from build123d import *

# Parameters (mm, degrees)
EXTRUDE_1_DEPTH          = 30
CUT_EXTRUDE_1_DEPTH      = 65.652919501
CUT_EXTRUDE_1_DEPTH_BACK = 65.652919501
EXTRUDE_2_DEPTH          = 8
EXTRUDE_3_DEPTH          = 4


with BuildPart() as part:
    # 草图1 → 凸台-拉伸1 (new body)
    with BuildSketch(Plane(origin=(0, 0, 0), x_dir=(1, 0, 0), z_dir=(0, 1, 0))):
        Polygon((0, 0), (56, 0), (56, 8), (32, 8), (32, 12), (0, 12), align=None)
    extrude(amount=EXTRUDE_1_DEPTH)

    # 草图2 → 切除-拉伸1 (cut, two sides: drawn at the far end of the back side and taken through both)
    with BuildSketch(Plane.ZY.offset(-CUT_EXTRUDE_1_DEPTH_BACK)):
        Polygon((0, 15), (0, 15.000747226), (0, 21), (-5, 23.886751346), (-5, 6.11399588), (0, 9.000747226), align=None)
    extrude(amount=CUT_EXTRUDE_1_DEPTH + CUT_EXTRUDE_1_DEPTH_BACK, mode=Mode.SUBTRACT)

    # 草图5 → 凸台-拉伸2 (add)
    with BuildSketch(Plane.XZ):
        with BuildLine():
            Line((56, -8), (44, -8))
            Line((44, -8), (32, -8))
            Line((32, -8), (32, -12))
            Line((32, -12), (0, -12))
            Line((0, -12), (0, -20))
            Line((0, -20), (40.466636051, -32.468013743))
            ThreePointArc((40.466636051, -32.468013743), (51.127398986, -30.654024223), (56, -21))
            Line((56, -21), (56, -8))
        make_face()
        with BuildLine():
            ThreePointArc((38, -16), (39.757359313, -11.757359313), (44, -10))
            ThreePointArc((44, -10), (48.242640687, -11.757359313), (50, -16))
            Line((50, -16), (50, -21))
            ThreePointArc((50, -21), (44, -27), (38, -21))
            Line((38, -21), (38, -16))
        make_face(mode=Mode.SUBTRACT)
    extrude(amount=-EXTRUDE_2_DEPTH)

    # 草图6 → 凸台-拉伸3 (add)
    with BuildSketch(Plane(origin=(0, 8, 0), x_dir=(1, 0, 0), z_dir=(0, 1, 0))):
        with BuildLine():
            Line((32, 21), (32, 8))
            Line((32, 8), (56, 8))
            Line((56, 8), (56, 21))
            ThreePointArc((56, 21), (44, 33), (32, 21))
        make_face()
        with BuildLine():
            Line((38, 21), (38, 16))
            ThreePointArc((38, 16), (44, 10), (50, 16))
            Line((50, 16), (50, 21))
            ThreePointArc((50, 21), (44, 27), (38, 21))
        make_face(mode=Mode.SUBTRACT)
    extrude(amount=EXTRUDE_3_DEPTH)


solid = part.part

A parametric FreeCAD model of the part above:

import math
import FreeCAD as App
import Part
import Sketcher
from FreeCAD import Vector
Q = App.Units.Quantity

doc = App.newDocument("Part")
body = doc.addObject("PartDesign::Body", "Body")

# Sketch on XZ plane
sketch1 = body.newObject("Sketcher::SketchObject", "Sketch")
sketch1.AttachmentSupport = (doc.getObject("XZ_Plane"), [""])
sketch1.MapMode = "FlatFace"
sketch1.addGeometry(Part.LineSegment(Vector(0, 0, 0), Vector(56, 0, 0)), False)
sketch1.addGeometry(Part.LineSegment(Vector(56, 0, 0), Vector(56, -8, 0)), False)
sketch1.addGeometry(Part.LineSegment(Vector(56, -8, 0), Vector(32, -8, 0)), False)
sketch1.addGeometry(Part.LineSegment(Vector(32, -8, 0), Vector(32, -12, 0)), False)
sketch1.addGeometry(Part.LineSegment(Vector(32, -12, 0), Vector(0, -12, 0)), False)
sketch1.addGeometry(Part.LineSegment(Vector(0, -12, 0), Vector(0, 0, 0)), False)
sketch1.addConstraint(Sketcher.Constraint("Coincident", 0, 2, 1, 1))
sketch1.addConstraint(Sketcher.Constraint("Coincident", 1, 2, 2, 1))
sketch1.addConstraint(Sketcher.Constraint("Coincident", 2, 2, 3, 1))
sketch1.addConstraint(Sketcher.Constraint("Coincident", 3, 2, 4, 1))
sketch1.addConstraint(Sketcher.Constraint("Coincident", 4, 2, 5, 1))
sketch1.addConstraint(Sketcher.Constraint("Coincident", 5, 2, 0, 1))
sketch1.addConstraint(Sketcher.Constraint("Horizontal", 0))
sketch1.addConstraint(Sketcher.Constraint("Vertical", 1))
sketch1.addConstraint(Sketcher.Constraint("Horizontal", 2))
sketch1.addConstraint(Sketcher.Constraint("Vertical", 3))
sketch1.addConstraint(Sketcher.Constraint("Horizontal", 4))
sketch1.addConstraint(Sketcher.Constraint("Vertical", 5))
sketch1.addConstraint(Sketcher.Constraint("Coincident", 5, 2, -1, 1))
sketch1.addConstraint(Sketcher.Constraint("DistanceX", 0, 1, 0, 2, Q("56 mm")))
sketch1.addConstraint(Sketcher.Constraint("DistanceX", 2, 2, 2, 1, Q("24 mm")))
sketch1.addConstraint(Sketcher.Constraint("DistanceY", 1, 2, 1, 1, Q("8 mm")))
sketch1.addConstraint(Sketcher.Constraint("DistanceY", 3, 2, 3, 1, Q("4 mm")))
pad1 = body.newObject("PartDesign::Pad", "Pad")
pad1.Profile = sketch1
pad1.Length = 30
pad1.Reversed = True

# Sketch on YZ plane
sketch2 = body.newObject("Sketcher::SketchObject", "Sketch001")
sketch2.AttachmentSupport = (doc.getObject("YZ_Plane"), [""])
sketch2.MapMode = "FlatFace"
sketch2.addGeometry(Part.LineSegment(Vector(21, 0, 0), Vector(24, -5, 0)), False)
sketch2.addGeometry(Part.LineSegment(Vector(24, -5, 0), Vector(6, -5, 0)), False)
sketch2.addGeometry(Part.LineSegment(Vector(6, -5, 0), Vector(9, 0, 0)), False)
sketch2.addGeometry(Part.LineSegment(Vector(9, 0, 0), Vector(21, 0, 0)), False)
sketch2.addConstraint(Sketcher.Constraint("Coincident", 0, 2, 1, 1))
sketch2.addConstraint(Sketcher.Constraint("Coincident", 1, 2, 2, 1))
sketch2.addConstraint(Sketcher.Constraint("Coincident", 2, 2, 3, 1))
sketch2.addConstraint(Sketcher.Constraint("Coincident", 3, 2, 0, 1))
sketch2.addConstraint(Sketcher.Constraint("Horizontal", 1))
sketch2.addConstraint(Sketcher.Constraint("Horizontal", 3))
sketch2.addConstraint(Sketcher.Constraint("PointOnObject", 2, 2, -1))
sketch2.addConstraint(Sketcher.Constraint("Equal", 0, 2))
sketch2.addConstraint(Sketcher.Constraint("Angle", 0, Q("-60 deg")))
sketch2.addConstraint(Sketcher.Constraint("DistanceY", 0, 2, -1, 1, Q("5 mm")))
sketch2.addConstraint(Sketcher.Constraint("DistanceX", -1, 1, 3, 2, Q("21 mm")))
sketch2.addConstraint(Sketcher.Constraint("DistanceX", 1, 2, 1, 1, Q("17.772755 mm")))
pocket1 = body.newObject("PartDesign::Pocket", "Pocket")
pocket1.Profile = sketch2
pocket1.Type = "ThroughAll"
pocket1.Midplane = True

# Sketch on XZ plane
sketch3 = body.newObject("Sketcher::SketchObject", "Sketch002")
sketch3.AttachmentSupport = (doc.getObject("XZ_Plane"), [""])
sketch3.MapMode = "FlatFace"
sketch3.addGeometry(Part.LineSegment(Vector(56, -8, 0), Vector(32, -8, 0)), False)
sketch3.addGeometry(Part.LineSegment(Vector(32, -8, 0), Vector(32, -12, 0)), False)
sketch3.addGeometry(Part.LineSegment(Vector(32, -12, 0), Vector(0, -12, 0)), False)
sketch3.addGeometry(Part.LineSegment(Vector(0, -12, 0), Vector(0, -20, 0)), False)
sketch3.addGeometry(Part.LineSegment(Vector(0, -20, 0), Vector(40.5, -32.5, 0)), False)
sketch3.addGeometry(Part.ArcOfCircle(Part.Circle(Vector(44, -21, 0), Vector(0, 0, 1), 12), math.radians(-107), math.radians(0)), False)
sketch3.addGeometry(Part.LineSegment(Vector(56, -21, 0), Vector(56, -8, 0)), False)
sketch3.addGeometry(Part.LineSegment(Vector(38, -21, 0), Vector(38, -16, 0)), False)
sketch3.addGeometry(Part.ArcOfCircle(Part.Circle(Vector(44, -16, 0), Vector(0, 0, 1), 6), math.radians(90), math.radians(180)), False)
sketch3.addGeometry(Part.ArcOfCircle(Part.Circle(Vector(44, -16, 0), Vector(0, 0, 1), 6), math.radians(0), math.radians(90)), False)
sketch3.addGeometry(Part.LineSegment(Vector(50, -16, 0), Vector(50, -21, 0)), False)
sketch3.addGeometry(Part.ArcOfCircle(Part.Circle(Vector(44, -21, 0), Vector(0, 0, 1), 6), math.radians(180), math.radians(360)), False)
sketch3.addConstraint(Sketcher.Constraint("Coincident", 0, 2, 1, 1))
sketch3.addConstraint(Sketcher.Constraint("Coincident", 1, 2, 2, 1))
sketch3.addConstraint(Sketcher.Constraint("Coincident", 2, 2, 3, 1))
sketch3.addConstraint(Sketcher.Constraint("Coincident", 3, 2, 4, 1))
sketch3.addConstraint(Sketcher.Constraint("Tangent", 4, 2, 5, 1))
sketch3.addConstraint(Sketcher.Constraint("Tangent", 5, 2, 6, 1))
sketch3.addConstraint(Sketcher.Constraint("Coincident", 6, 2, 0, 1))
sketch3.addConstraint(Sketcher.Constraint("Tangent", 7, 2, 8, 2))
sketch3.addConstraint(Sketcher.Constraint("Tangent", 8, 1, 9, 2))
sketch3.addConstraint(Sketcher.Constraint("Tangent", 9, 1, 10, 1))
sketch3.addConstraint(Sketcher.Constraint("Tangent", 10, 2, 11, 2))
sketch3.addConstraint(Sketcher.Constraint("Tangent", 11, 1, 7, 1))
sketch3.addConstraint(Sketcher.Constraint("Horizontal", 0))
sketch3.addConstraint(Sketcher.Constraint("Vertical", 1))
sketch3.addConstraint(Sketcher.Constraint("Horizontal", 2))
sketch3.addConstraint(Sketcher.Constraint("Vertical", 3))
sketch3.addConstraint(Sketcher.Constraint("Vertical", 6))
sketch3.addConstraint(Sketcher.Constraint("Vertical", 7))
sketch3.addConstraint(Sketcher.Constraint("Vertical", 10))
sketch3.addConstraint(Sketcher.Constraint("Coincident", 11, 3, 5, 3))
sketch3.addConstraint(Sketcher.Constraint("Equal", 8, 9))
sketch3.addConstraint(Sketcher.Constraint("PointOnObject", 2, 2, -2))
sketch3.addConstraint(Sketcher.Constraint("Vertical", 11, 3, 8, 1))
sketch3.addConstraint(Sketcher.Constraint("Radius", 5, Q("12 mm")))
sketch3.addConstraint(Sketcher.Constraint("Radius", 8, Q("6 mm")))
sketch3.addConstraint(Sketcher.Constraint("DistanceX", 0, 2, 0, 1, Q("24 mm")))
sketch3.addConstraint(Sketcher.Constraint("DistanceX", 2, 2, 2, 1, Q("32 mm")))
sketch3.addConstraint(Sketcher.Constraint("DistanceY", 1, 2, 1, 1, Q("4 mm")))
sketch3.addConstraint(Sketcher.Constraint("DistanceY", 3, 2, 3, 1, Q("8 mm")))
sketch3.addConstraint(Sketcher.Constraint("DistanceY", 6, 1, 6, 2, Q("13 mm")))
sketch3.addConstraint(Sketcher.Constraint("DistanceY", 7, 1, 7, 2, Q("5 mm")))
sketch3.addConstraint(Sketcher.Constraint("DistanceY", 5, 3, -1, 1, Q("21 mm")))
pad2 = body.newObject("PartDesign::Pad", "Pad001")
pad2.Profile = sketch3
pad2.Length = 8
pad2.Reversed = True

# Sketch on XZ plane
sketch4 = body.newObject("Sketcher::SketchObject", "Sketch003")
sketch4.AttachmentSupport = (doc.getObject("XZ_Plane"), [""])
sketch4.MapMode = "FlatFace"
sketch4.AttachmentOffset = App.Placement(Vector(0, 0, -8), App.Rotation())
sketch4.addGeometry(Part.LineSegment(Vector(32, -21, 0), Vector(32, -8, 0)), False)
sketch4.addGeometry(Part.LineSegment(Vector(32, -8, 0), Vector(56, -8, 0)), False)
sketch4.addGeometry(Part.LineSegment(Vector(56, -8, 0), Vector(56, -21, 0)), False)
sketch4.addGeometry(Part.ArcOfCircle(Part.Circle(Vector(44, -21, 0), Vector(0, 0, 1), 12), math.radians(180), math.radians(360)), False)
sketch4.addGeometry(Part.LineSegment(Vector(38, -16, 0), Vector(38, -21, 0)), False)
sketch4.addGeometry(Part.ArcOfCircle(Part.Circle(Vector(44, -21, 0), Vector(0, 0, 1), 6), math.radians(180), math.radians(360)), False)
sketch4.addGeometry(Part.LineSegment(Vector(50, -21, 0), Vector(50, -16, 0)), False)
sketch4.addGeometry(Part.ArcOfCircle(Part.Circle(Vector(44, -16, 0), Vector(0, 0, 1), 6), math.radians(0), math.radians(180)), False)
sketch4.addConstraint(Sketcher.Constraint("Coincident", 0, 2, 1, 1))
sketch4.addConstraint(Sketcher.Constraint("Coincident", 1, 2, 2, 1))
sketch4.addConstraint(Sketcher.Constraint("Tangent", 2, 2, 3, 2))
sketch4.addConstraint(Sketcher.Constraint("Tangent", 3, 1, 0, 1))
sketch4.addConstraint(Sketcher.Constraint("Tangent", 4, 2, 5, 1))
sketch4.addConstraint(Sketcher.Constraint("Tangent", 5, 2, 6, 1))
sketch4.addConstraint(Sketcher.Constraint("Tangent", 6, 2, 7, 1))
sketch4.addConstraint(Sketcher.Constraint("Tangent", 7, 2, 4, 1))
sketch4.addConstraint(Sketcher.Constraint("Vertical", 0))
sketch4.addConstraint(Sketcher.Constraint("Horizontal", 1))
sketch4.addConstraint(Sketcher.Constraint("Vertical", 2))
sketch4.addConstraint(Sketcher.Constraint("Vertical", 4))
sketch4.addConstraint(Sketcher.Constraint("Vertical", 6))
sketch4.addConstraint(Sketcher.Constraint("Coincident", 5, 3, 3, 3))
sketch4.addConstraint(Sketcher.Constraint("Radius", 3, Q("12 mm")))
sketch4.addConstraint(Sketcher.Constraint("Radius", 5, Q("6 mm")))
sketch4.addConstraint(Sketcher.Constraint("DistanceY", 0, 1, 0, 2, Q("13 mm")))
sketch4.addConstraint(Sketcher.Constraint("DistanceY", 4, 2, 4, 1, Q("5 mm")))
sketch4.addConstraint(Sketcher.Constraint("DistanceX", -1, 1, 3, 3, Q("44 mm")))
sketch4.addConstraint(Sketcher.Constraint("DistanceY", 3, 3, -1, 1, Q("21 mm")))
pad3 = body.newObject("PartDesign::Pad", "Pad002")
pad3.Profile = sketch4
pad3.Length = 4
pad3.Reversed = True

doc.recompute()
